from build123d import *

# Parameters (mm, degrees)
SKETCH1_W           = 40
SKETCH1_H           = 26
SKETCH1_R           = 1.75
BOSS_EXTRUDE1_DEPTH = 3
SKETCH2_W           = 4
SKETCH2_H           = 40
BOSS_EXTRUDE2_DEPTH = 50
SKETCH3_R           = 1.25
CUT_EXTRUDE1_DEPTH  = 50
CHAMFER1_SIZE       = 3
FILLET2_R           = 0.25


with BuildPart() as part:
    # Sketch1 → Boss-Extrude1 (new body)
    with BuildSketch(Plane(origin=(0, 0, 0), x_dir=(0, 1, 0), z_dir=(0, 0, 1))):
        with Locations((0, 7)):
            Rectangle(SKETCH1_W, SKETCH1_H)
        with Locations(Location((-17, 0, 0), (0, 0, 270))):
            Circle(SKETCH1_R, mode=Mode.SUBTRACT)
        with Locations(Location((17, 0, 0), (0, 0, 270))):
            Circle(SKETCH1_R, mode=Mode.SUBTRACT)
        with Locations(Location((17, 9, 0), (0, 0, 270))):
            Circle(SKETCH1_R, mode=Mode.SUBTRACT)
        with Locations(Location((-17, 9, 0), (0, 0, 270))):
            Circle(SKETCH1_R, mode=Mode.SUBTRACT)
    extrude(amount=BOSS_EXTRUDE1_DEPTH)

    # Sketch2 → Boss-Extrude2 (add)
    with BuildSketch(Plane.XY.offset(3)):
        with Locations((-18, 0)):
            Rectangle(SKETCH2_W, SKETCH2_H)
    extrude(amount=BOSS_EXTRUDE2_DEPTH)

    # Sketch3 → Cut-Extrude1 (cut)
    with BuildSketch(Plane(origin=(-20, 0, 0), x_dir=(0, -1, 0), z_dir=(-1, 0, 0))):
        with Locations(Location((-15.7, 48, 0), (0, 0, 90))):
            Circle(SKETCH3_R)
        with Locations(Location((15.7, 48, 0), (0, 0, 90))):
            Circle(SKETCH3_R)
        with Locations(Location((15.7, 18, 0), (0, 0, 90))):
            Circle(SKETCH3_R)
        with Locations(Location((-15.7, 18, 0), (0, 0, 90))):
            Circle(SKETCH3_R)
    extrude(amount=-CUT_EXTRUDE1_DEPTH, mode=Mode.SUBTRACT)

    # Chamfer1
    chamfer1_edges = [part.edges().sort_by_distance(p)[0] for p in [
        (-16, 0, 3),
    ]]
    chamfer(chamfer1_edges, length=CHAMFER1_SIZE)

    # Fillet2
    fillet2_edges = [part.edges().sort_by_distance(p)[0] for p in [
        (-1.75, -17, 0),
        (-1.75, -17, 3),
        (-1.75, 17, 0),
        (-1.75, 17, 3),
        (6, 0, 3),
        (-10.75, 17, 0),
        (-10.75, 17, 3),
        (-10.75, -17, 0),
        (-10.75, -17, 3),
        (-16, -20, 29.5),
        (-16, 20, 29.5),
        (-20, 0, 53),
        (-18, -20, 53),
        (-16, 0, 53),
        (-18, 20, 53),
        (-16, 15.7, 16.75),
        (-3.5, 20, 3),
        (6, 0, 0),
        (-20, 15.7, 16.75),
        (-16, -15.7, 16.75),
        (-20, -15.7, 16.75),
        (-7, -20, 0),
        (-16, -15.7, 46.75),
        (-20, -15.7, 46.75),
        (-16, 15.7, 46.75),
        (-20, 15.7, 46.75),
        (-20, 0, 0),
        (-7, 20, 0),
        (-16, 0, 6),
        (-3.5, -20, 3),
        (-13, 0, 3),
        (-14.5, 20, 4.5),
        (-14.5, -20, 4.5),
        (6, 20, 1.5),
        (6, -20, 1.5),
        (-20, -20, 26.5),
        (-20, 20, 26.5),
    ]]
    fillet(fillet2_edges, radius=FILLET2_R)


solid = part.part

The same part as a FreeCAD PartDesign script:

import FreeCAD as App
import Part
import Sketcher
from FreeCAD import Vector
Q = App.Units.Quantity


def edges_at(feature, points):
    """Names of the edges that pass closest to the given points."""
    edges = feature.Shape.Edges
    near = lambda p: min(range(len(edges)), key=lambda i: edges[i].distToShape(Part.Vertex(*p))[0])
    return sorted({f"Edge{near(p) + 1}" for p in points})


def add_polygon(sketch, points):
    """Adds a closed chain of lines whose ends are joined by coincident constraints."""
    first, n = sketch.GeometryCount, len(points)
    for a, b in zip(points, points[1:] + points[:1]):
        sketch.addGeometry(Part.LineSegment(App.Vector(*a, 0), App.Vector(*b, 0)), False)
    for i in range(n):
        sketch.addConstraint(Sketcher.Constraint("Coincident", first + i, 2, first + (i + 1) % n, 1))

doc = App.newDocument("Part")
body = doc.addObject("PartDesign::Body", "Body")

# Sketch on XY plane
sketch1 = body.newObject("Sketcher::SketchObject", "Sketch")
sketch1.AttachmentSupport = (doc.getObject("XY_Plane"), [""])
sketch1.MapMode = "FlatFace"
add_polygon(sketch1, [(-20, -20), (6, -20), (6, 20), (-20, 20)])  # lines 0-3
sketch1.addGeometry(Part.Circle(Vector(0, -17, 0), Vector(0, 0, 1), 1.8), False)  # 4
sketch1.addGeometry(Part.Circle(Vector(0, 17, 0), Vector(0, 0, 1), 1.8), False)  # 5
sketch1.addGeometry(Part.Circle(Vector(-9, -17, 0), Vector(0, 0, 1), 1.8), False)  # 6
sketch1.addGeometry(Part.Circle(Vector(-9, 17, 0), Vector(0, 0, 1), 1.8), False)  # 7
sketch1.addConstraint(Sketcher.Constraint("Horizontal", 0))
sketch1.addConstraint(Sketcher.Constraint("Vertical", 1))
sketch1.addConstraint(Sketcher.Constraint("Horizontal", 2))
sketch1.addConstraint(Sketcher.Constraint("Vertical", 3))
sketch1.addConstraint(Sketcher.Constraint("Equal", 4, 5))
sketch1.addConstraint(Sketcher.Constraint("Equal", 5, 6))
sketch1.addConstraint(Sketcher.Constraint("Equal", 6, 7))
sketch1.addConstraint(Sketcher.Constraint("Symmetric", 4, 3, 5, 3, -1, 1))
sketch1.addConstraint(Sketcher.Constraint("Symmetric", 6, 3, 7, 3, -1))
sketch1.addConstraint(Sketcher.Constraint("PointOnObject", 4, 3, -2))
sketch1.addConstraint(Sketcher.Constraint("Horizontal", 4, 3, 6, 3))
sketch1.addConstraint(Sketcher.Constraint("Diameter", 4, Q("3.5 mm")))
sketch1.addConstraint(Sketcher.Constraint("DistanceX", 0, 1, 0, 2, Q("26 mm")))
sketch1.addConstraint(Sketcher.Constraint("DistanceY", 1, 1, 1, 2, Q("40 mm")))
sketch1.addConstraint(Sketcher.Constraint("DistanceY", 4, 3, -1, 1, Q("17 mm")))
sketch1.addConstraint(Sketcher.Constraint("DistanceX", 6, 3, -1, 1, Q("9 mm")))
sketch1.addConstraint(Sketcher.Constraint("DistanceX", -1, 1, 0, 2, Q("6 mm")))
sketch1.addConstraint(Sketcher.Constraint("DistanceY", 0, 2, -1, 1, Q("20 mm")))
pad1 = body.newObject("PartDesign::Pad", "Pad")
pad1.Profile = sketch1
pad1.Length = 3

# Sketch on XY plane
sketch2 = body.newObject("Sketcher::SketchObject", "Sketch001")
sketch2.AttachmentSupport = (doc.getObject("XY_Plane"), [""])
sketch2.MapMode = "FlatFace"
sketch2.AttachmentOffset = App.Placement(Vector(0, 0, 3), App.Rotation())
add_polygon(sketch2, [(-20, 20), (-20, -20), (-16, -20), (-16, 20)])  # lines 0-3
sketch2.addConstraint(Sketcher.Constraint("Vertical", 0))
sketch2.addConstraint(Sketcher.Constraint("Horizontal", 1))
sketch2.addConstraint(Sketcher.Constraint("Vertical", 2))
sketch2.addConstraint(Sketcher.Constraint("Horizontal", 3))
sketch2.addConstraint(Sketcher.Constraint("DistanceX", 1, 1, 1, 2, Q("4 mm")))
sketch2.addConstraint(Sketcher.Constraint("DistanceY", 0, 2, 0, 1, Q("40 mm")))
sketch2.addConstraint(Sketcher.Constraint("DistanceX", 0, 2, -1, 1, Q("20 mm")))
sketch2.addConstraint(Sketcher.Constraint("DistanceY", 0, 2, -1, 1, Q("20 mm")))
pad2 = body.newObject("PartDesign::Pad", "Pad001")
pad2.Profile = sketch2
pad2.Length = 50

# Sketch on YZ plane
sketch3 = body.newObject("Sketcher::SketchObject", "Sketch002")
sketch3.AttachmentSupport = (doc.getObject("YZ_Plane"), [""])
sketch3.MapMode = "FlatFace"
sketch3.AttachmentOffset = App.Placement(Vector(0, 0, -20), App.Rotation())
sketch3.addGeometry(Part.Circle(Vector(15.7, 48, 0), Vector(0, 0, 1), 1.2), False)
sketch3.addGeometry(Part.Circle(Vector(-15.7, 48, 0), Vector(0, 0, 1), 1.2), False)
sketch3.addGeometry(Part.Circle(Vector(-15.7, 18, 0), Vector(0, 0, 1), 1.2), False)
sketch3.addGeometry(Part.Circle(Vector(15.7, 18, 0), Vector(0, 0, 1), 1.2), False)
sketch3.addConstraint(Sketcher.Constraint("Equal", 0, 1))
sketch3.addConstraint(Sketcher.Constraint("Equal", 1, 2))
sketch3.addConstraint(Sketcher.Constraint("Equal", 2, 3))
sketch3.addConstraint(Sketcher.Constraint("Symmetric", 0, 3, 1, 3, -2))
sketch3.addConstraint(Sketcher.Constraint("Symmetric", 2, 3, 3, 3, -2))
sketch3.addConstraint(Sketcher.Constraint("Vertical", 1, 3, 2, 3))
sketch3.addConstraint(Sketcher.Constraint("Diameter", 0, Q("2.5 mm")))
sketch3.addConstraint(Sketcher.Constraint("DistanceY", -1, 1, 0, 3, Q("48 mm")))
sketch3.addConstraint(Sketcher.Constraint("DistanceY", -1, 1, 2, 3, Q("18 mm")))
sketch3.addConstraint(Sketcher.Constraint("DistanceX", -1, 1, 0, 3, Q("15.7 mm")))
pocket1 = body.newObject("PartDesign::Pocket", "Pocket")
pocket1.Profile = sketch3
pocket1.Length = 50
pocket1.Reversed = True
doc.recompute()

chamfer = body.newObject("PartDesign::Chamfer", "Chamfer")
chamfer.Base = (pocket1, edges_at(pocket1, [(-16, 0, 3)]))
chamfer.Size = 3
doc.recompute()

fillet = body.newObject("PartDesign::Fillet", "Fillet")
fillet.Base = (chamfer, ["Edge1"])
fillet.UseAllEdges = True
fillet.Radius = 0.25

doc.recompute()
